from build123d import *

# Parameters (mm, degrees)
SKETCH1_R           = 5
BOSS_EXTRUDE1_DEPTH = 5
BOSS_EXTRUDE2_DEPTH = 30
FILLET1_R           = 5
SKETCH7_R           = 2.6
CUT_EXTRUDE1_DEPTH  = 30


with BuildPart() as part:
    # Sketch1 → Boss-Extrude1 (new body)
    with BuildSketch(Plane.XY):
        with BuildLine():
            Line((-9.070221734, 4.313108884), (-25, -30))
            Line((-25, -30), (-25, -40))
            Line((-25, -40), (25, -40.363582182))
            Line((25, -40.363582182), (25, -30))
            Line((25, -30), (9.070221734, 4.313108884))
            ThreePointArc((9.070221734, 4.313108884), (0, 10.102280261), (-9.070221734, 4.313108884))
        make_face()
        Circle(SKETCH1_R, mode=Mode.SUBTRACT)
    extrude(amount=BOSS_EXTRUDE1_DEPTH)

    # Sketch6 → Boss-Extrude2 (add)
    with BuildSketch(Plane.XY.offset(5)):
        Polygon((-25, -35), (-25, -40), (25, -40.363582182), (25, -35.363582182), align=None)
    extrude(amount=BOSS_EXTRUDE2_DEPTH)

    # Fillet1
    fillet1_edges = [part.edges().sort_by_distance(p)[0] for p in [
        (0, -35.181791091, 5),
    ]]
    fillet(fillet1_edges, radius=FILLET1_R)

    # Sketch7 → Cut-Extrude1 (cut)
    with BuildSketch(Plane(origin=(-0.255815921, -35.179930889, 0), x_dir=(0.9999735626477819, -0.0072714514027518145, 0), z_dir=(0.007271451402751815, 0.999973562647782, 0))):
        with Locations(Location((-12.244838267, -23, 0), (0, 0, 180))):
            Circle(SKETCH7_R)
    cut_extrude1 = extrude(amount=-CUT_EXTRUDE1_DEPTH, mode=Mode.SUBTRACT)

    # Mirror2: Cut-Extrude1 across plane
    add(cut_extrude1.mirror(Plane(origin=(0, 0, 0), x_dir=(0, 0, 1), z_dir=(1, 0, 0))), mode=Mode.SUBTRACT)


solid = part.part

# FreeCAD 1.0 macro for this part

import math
import FreeCAD as App
import Part
import Sketcher
from FreeCAD import Vector
Q = App.Units.Quantity


def edges_at(feature, points):
    """Names of the edges that pass closest to the given points."""
    edges = feature.Shape.Edges
    near = lambda p: min(range(len(edges)), key=lambda i: edges[i].distToShape(Part.Vertex(*p))[0])
    return sorted({f"Edge{near(p) + 1}" for p in points})


def add_polygon(sketch, points):
    """Adds a closed chain of lines whose ends are joined by coincident constraints."""
    first, n = sketch.GeometryCount, len(points)
    for a, b in zip(points, points[1:] + points[:1]):
        sketch.addGeometry(Part.LineSegment(App.Vector(*a, 0), App.Vector(*b, 0)), False)
    for i in range(n):
        sketch.addConstraint(Sketcher.Constraint("Coincident", first + i, 2, first + (i + 1) % n, 1))

doc = App.newDocument("Part")
body = doc.addObject("PartDesign::Body", "Body")

sketch1 = body.newObject("Sketcher::SketchObject", "Sketch")
sketch1.AttachmentSupport = (doc.getObject("XY_Plane"), [""])
sketch1.MapMode = "FlatFace"
sketch1.addGeometry(Part.LineSegment(Vector(-9.070222, 4.313109, 0), Vector(-25, -30, 0)), False)
sketch1.addGeometry(Part.LineSegment(Vector(-25, -30, 0), Vector(-25, -40, 0)), False)
sketch1.addGeometry(Part.LineSegment(Vector(-25, -40, 0), Vector(25, -40.363582, 0)), False)
sketch1.addGeometry(Part.LineSegment(Vector(25, -40.363582, 0), Vector(25, -30, 0)), False)
sketch1.addGeometry(Part.LineSegment(Vector(25, -30, 0), Vector(9.070222, 4.313109, 0)), False)
sketch1.addGeometry(Part.ArcOfCircle(Part.Circle(Vector(0, 0.10228, 0), Vector(0, 0, 1), 10), math.radians(24.902972), math.radians(155.097028)), False)
sketch1.addGeometry(Part.Circle(Vector(0, 0, 0), Vector(0, 0, 1), 5), False)
sketch1.addConstraint(Sketcher.Constraint("Coincident", 0, 2, 1, 1))
sketch1.addConstraint(Sketcher.Constraint("Coincident", 1, 2, 2, 1))
sketch1.addConstraint(Sketcher.Constraint("Coincident", 2, 2, 3, 1))
sketch1.addConstraint(Sketcher.Constraint("Coincident", 3, 2, 4, 1))
sketch1.addConstraint(Sketcher.Constraint("Tangent", 4, 2, 5, 1))
sketch1.addConstraint(Sketcher.Constraint("Tangent", 5, 2, 0, 1))
sketch1.addConstraint(Sketcher.Constraint("Vertical", 1))
sketch1.addConstraint(Sketcher.Constraint("Vertical", 3))
sketch1.addConstraint(Sketcher.Constraint("Coincident", 6, 3, -1, 1))
sketch1.addConstraint(Sketcher.Constraint("Symmetric", 0, 2, 3, 2, -2))
sketch1.addConstraint(Sketcher.Constraint("PointOnObject", 5, 3, -2))
sketch1.addConstraint(Sketcher.Constraint("Diameter", 6, Q("10 mm")))
sketch1.addConstraint(Sketcher.Constraint("Radius", 5, Q("10 mm")))
sketch1.addConstraint(Sketcher.Constraint("DistanceY", 1, 2, 1, 1, Q("10 mm")))
sketch1.addConstraint(Sketcher.Constraint("DistanceX", 0, 2, -1, 1, Q("25 mm")))
sketch1.addConstraint(Sketcher.Constraint("DistanceY", 0, 2, -1, 1, Q("30 mm")))
sketch1.addConstraint(Sketcher.Constraint("Distance", 2, Q("50.001322 mm")))
sketch1.addConstraint(Sketcher.Constraint("DistanceY", -1, 1, 5, 3, Q("0.10228 mm")))
pad1 = body.newObject("PartDesign::Pad", "Pad")
pad1.Profile = sketch1
pad1.Length = 5

sketch2 = body.newObject("Sketcher::SketchObject", "Sketch001")
sketch2.AttachmentSupport = (doc.getObject("XY_Plane"), [""])
sketch2.MapMode = "FlatFace"
sketch2.AttachmentOffset = App.Placement(Vector(0, 0, 5), App.Rotation())
add_polygon(sketch2, [(-25, -35), (-25, -40), (25, -40.363582), (25, -35.363582)])
sketch2.addConstraint(Sketcher.Constraint("Vertical", 0))
sketch2.addConstraint(Sketcher.Constraint("Vertical", 2))
sketch2.addConstraint(Sketcher.Constraint("Parallel", 1, 3))
sketch2.addConstraint(Sketcher.Constraint("DistanceY", 0, 2, 0, 1, Q("5 mm")))
sketch2.addConstraint(Sketcher.Constraint("DistanceX", 0, 2, -1, 1, Q("25 mm")))
sketch2.addConstraint(Sketcher.Constraint("DistanceY", 0, 2, -1, 1, Q("40 mm")))
sketch2.addConstraint(Sketcher.Constraint("DistanceX", -1, 1, 1, 2, Q("25 mm")))
sketch2.addConstraint(Sketcher.Constraint("Distance", 1, Q("50.001322 mm")))
pad2 = body.newObject("PartDesign::Pad", "Pad001")
pad2.Profile = sketch2
pad2.Length = 30
doc.recompute()

fillet = body.newObject("PartDesign::Fillet", "Fillet")
fillet.Base = (pad2, edges_at(pad2, [(0, -35.182, 5)]))
fillet.Radius = 5

sketch3 = body.newObject("Sketcher::SketchObject", "Sketch002")
sketch3.Placement = App.Placement(Vector(-0.255816, -35.179931, 0), App.Rotation(Vector(0.999973563, -0.007271451, 0), Vector(0, 0, -1.000000001), Vector(0.007271451, 0.999973563, 0), "ZXY"))
sketch3.addGeometry(Part.Circle(Vector(-12.244838, -23, 0), Vector(0, 0, 1), 2.6), False)
sketch3.addConstraint(Sketcher.Constraint("Diameter", 0, Q("5.2 mm")))
sketch3.addConstraint(Sketcher.Constraint("DistanceY", 0, 3, -1, 1, Q("23 mm")))
sketch3.addConstraint(Sketcher.Constraint("DistanceX", 0, 3, -1, 1, Q("12.244838 mm")))
pocket1 = body.newObject("PartDesign::Pocket", "Pocket")
pocket1.Profile = sketch3
pocket1.Length = 30
doc.recompute()

mirrored = body.newObject("PartDesign::Mirrored", "Mirrored")
mirrored.Originals = [pocket1]
mirrored.MirrorPlane = (doc.getObject("YZ_Plane"), [""])
body.Tip = mirrored

doc.recompute()
